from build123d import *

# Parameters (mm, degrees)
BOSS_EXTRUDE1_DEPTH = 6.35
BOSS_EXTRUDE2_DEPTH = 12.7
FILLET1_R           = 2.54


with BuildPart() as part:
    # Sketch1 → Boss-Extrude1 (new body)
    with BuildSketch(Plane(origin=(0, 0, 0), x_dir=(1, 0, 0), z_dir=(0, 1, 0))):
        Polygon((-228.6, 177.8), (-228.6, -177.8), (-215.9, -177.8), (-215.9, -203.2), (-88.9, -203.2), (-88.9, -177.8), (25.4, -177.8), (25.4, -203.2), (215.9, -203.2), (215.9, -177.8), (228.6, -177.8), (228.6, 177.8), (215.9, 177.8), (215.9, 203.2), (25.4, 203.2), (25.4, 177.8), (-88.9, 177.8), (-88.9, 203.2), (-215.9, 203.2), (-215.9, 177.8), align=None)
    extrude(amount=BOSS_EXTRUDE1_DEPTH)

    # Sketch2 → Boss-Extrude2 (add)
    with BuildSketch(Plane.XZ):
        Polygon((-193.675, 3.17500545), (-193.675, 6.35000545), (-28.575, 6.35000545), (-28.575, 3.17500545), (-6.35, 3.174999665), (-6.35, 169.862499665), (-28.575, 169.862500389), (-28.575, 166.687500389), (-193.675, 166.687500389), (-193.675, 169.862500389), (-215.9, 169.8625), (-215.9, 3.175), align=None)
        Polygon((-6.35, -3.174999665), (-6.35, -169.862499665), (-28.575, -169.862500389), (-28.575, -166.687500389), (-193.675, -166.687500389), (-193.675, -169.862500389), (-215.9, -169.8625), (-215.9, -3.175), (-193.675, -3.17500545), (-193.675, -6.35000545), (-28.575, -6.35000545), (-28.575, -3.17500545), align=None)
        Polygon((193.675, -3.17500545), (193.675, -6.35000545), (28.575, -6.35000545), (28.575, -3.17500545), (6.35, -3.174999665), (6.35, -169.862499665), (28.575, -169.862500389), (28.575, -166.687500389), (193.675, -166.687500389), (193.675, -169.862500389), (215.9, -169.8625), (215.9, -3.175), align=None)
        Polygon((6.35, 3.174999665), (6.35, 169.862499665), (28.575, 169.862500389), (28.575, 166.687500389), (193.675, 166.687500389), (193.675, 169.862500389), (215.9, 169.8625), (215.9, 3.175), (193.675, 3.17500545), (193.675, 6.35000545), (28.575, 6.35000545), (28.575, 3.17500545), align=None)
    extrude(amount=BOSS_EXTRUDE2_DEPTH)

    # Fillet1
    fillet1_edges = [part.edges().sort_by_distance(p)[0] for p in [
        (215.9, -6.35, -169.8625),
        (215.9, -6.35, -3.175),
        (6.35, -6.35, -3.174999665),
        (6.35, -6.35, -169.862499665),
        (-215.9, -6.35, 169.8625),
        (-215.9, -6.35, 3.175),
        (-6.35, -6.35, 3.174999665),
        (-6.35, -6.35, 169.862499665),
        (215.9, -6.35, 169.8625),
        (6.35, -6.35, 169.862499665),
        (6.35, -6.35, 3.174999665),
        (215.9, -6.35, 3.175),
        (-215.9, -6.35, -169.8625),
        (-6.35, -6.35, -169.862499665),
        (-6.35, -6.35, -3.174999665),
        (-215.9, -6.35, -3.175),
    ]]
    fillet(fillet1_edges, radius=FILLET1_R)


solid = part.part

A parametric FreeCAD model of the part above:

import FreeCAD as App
import Part
import Sketcher

V = App.Vector
Q = App.Units.Quantity


def edges_at(feature, points):
    """Names of the edges that pass closest to the given points."""
    edges = feature.Shape.Edges
    near = lambda p: min(range(len(edges)), key=lambda i: edges[i].distToShape(Part.Vertex(*p))[0])
    return sorted({f"Edge{near(p) + 1}" for p in points})

doc = App.newDocument("Part")
params = doc.addObject("Spreadsheet::Sheet", "Params")
for row, (alias, value) in enumerate([
    ("sketch1_width", "5 in"),
    ("sketch1_height", "14 in"),
    ("sketch1_height2", "1 in"),
    ("sketch1_width2", "0.5 in"),
    ("sketch1_width3", "4.5 in"),
    ("pad1_length", "0.25 in"),
    ("sketch2_width", "6.5 in"),
    ("sketch2_height", "0.125 in"),
    ("sketch2_height2", "6.5625 in"),
    ("pad2_length", "0.5 in"),
    ("fillet_radius", "0.1 in"),
], start=1):
    params.set(f"A{row}", alias)
    params.set(f"B{row}", "=" + value)
    params.setAlias(f"B{row}", alias)

body = doc.addObject("PartDesign::Body", "Body")

sketch1 = body.newObject("Sketcher::SketchObject", "Sketch")
sketch1.AttachmentSupport = (doc.getObject("XZ_Plane"), [""])
sketch1.MapMode = "FlatFace"
sketch1.addGeometry(Part.LineSegment(V(-229, -178, 0), V(-229, 178, 0)), False)
sketch1.addGeometry(Part.LineSegment(V(-229, 178, 0), V(-216, 178, 0)), False)
sketch1.addGeometry(Part.LineSegment(V(-216, 178, 0), V(-216, 203, 0)), False)
sketch1.addGeometry(Part.LineSegment(V(-216, 203, 0), V(-89, 203, 0)), False)
sketch1.addGeometry(Part.LineSegment(V(-89, 203, 0), V(-89, 178, 0)), False)
sketch1.addGeometry(Part.LineSegment(V(-89, 178, 0), V(25, 178, 0)), False)
sketch1.addGeometry(Part.LineSegment(V(25, 178, 0), V(25, 203, 0)), False)
sketch1.addGeometry(Part.LineSegment(V(25, 203, 0), V(216, 203, 0)), False)
sketch1.addGeometry(Part.LineSegment(V(216, 203, 0), V(216, 178, 0)), False)
sketch1.addGeometry(Part.LineSegment(V(216, 178, 0), V(229, 178, 0)), False)
sketch1.addGeometry(Part.LineSegment(V(229, 178, 0), V(229, -178, 0)), False)
sketch1.addGeometry(Part.LineSegment(V(229, -178, 0), V(216, -178, 0)), False)
sketch1.addGeometry(Part.LineSegment(V(216, -178, 0), V(216, -203, 0)), False)
sketch1.addGeometry(Part.LineSegment(V(216, -203, 0), V(25, -203, 0)), False)
sketch1.addGeometry(Part.LineSegment(V(25, -203, 0), V(25, -178, 0)), False)
sketch1.addGeometry(Part.LineSegment(V(25, -178, 0), V(-89, -178, 0)), False)
sketch1.addGeometry(Part.LineSegment(V(-89, -178, 0), V(-89, -203, 0)), False)
sketch1.addGeometry(Part.LineSegment(V(-89, -203, 0), V(-216, -203, 0)), False)
sketch1.addGeometry(Part.LineSegment(V(-216, -203, 0), V(-216, -178, 0)), False)
sketch1.addGeometry(Part.LineSegment(V(-216, -178, 0), V(-229, -178, 0)), False)
sketch1.addConstraint(Sketcher.Constraint("Coincident", 0, 2, 1, 1))
sketch1.addConstraint(Sketcher.Constraint("Coincident", 1, 2, 2, 1))
sketch1.addConstraint(Sketcher.Constraint("Coincident", 2, 2, 3, 1))
sketch1.addConstraint(Sketcher.Constraint("Coincident", 3, 2, 4, 1))
sketch1.addConstraint(Sketcher.Constraint("Coincident", 4, 2, 5, 1))
sketch1.addConstraint(Sketcher.Constraint("Coincident", 5, 2, 6, 1))
sketch1.addConstraint(Sketcher.Constraint("Coincident", 6, 2, 7, 1))
sketch1.addConstraint(Sketcher.Constraint("Coincident", 7, 2, 8, 1))
sketch1.addConstraint(Sketcher.Constraint("Coincident", 8, 2, 9, 1))
sketch1.addConstraint(Sketcher.Constraint("Coincident", 9, 2, 10, 1))
sketch1.addConstraint(Sketcher.Constraint("Coincident", 10, 2, 11, 1))
sketch1.addConstraint(Sketcher.Constraint("Coincident", 11, 2, 12, 1))
sketch1.addConstraint(Sketcher.Constraint("Coincident", 12, 2, 13, 1))
sketch1.addConstraint(Sketcher.Constraint("Coincident", 13, 2, 14, 1))
sketch1.addConstraint(Sketcher.Constraint("Coincident", 14, 2, 15, 1))
sketch1.addConstraint(Sketcher.Constraint("Coincident", 15, 2, 16, 1))
sketch1.addConstraint(Sketcher.Constraint("Coincident", 16, 2, 17, 1))
sketch1.addConstraint(Sketcher.Constraint("Coincident", 17, 2, 18, 1))
sketch1.addConstraint(Sketcher.Constraint("Coincident", 18, 2, 19, 1))
sketch1.addConstraint(Sketcher.Constraint("Coincident", 19, 2, 0, 1))
sketch1.addConstraint(Sketcher.Constraint("Vertical", 0))
sketch1.addConstraint(Sketcher.Constraint("Horizontal", 1))
sketch1.addConstraint(Sketcher.Constraint("Vertical", 2))
sketch1.addConstraint(Sketcher.Constraint("Horizontal", 3))
sketch1.addConstraint(Sketcher.Constraint("Vertical", 4))
sketch1.addConstraint(Sketcher.Constraint("Horizontal", 5))
sketch1.addConstraint(Sketcher.Constraint("Vertical", 6))
sketch1.addConstraint(Sketcher.Constraint("Horizontal", 7))
sketch1.addConstraint(Sketcher.Constraint("Vertical", 8))
sketch1.addConstraint(Sketcher.Constraint("Horizontal", 9))
sketch1.addConstraint(Sketcher.Constraint("Vertical", 10))
sketch1.addConstraint(Sketcher.Constraint("Horizontal", 11))
sketch1.addConstraint(Sketcher.Constraint("Vertical", 12))
sketch1.addConstraint(Sketcher.Constraint("Horizontal", 13))
sketch1.addConstraint(Sketcher.Constraint("Vertical", 14))
sketch1.addConstraint(Sketcher.Constraint("Horizontal", 15))
sketch1.addConstraint(Sketcher.Constraint("Vertical", 16))
sketch1.addConstraint(Sketcher.Constraint("Horizontal", 17))
sketch1.addConstraint(Sketcher.Constraint("Vertical", 18))
sketch1.addConstraint(Sketcher.Constraint("Horizontal", 19))
sketch1.addConstraint(Sketcher.Constraint("Symmetric", 0, 2, 10, 2, -1, 1))
sketch1.addConstraint(Sketcher.Constraint("Symmetric", 2, 2, 12, 2, -1, 1))
sketch1.addConstraint(Sketcher.Constraint("Symmetric", 7, 2, 17, 2, -1, 1))
sketch1.addConstraint(Sketcher.Constraint("Symmetric", 2, 2, 7, 2, -2))
sketch1.addConstraint(Sketcher.Constraint("Symmetric", 5, 2, 14, 2, -1))
sketch1.addConstraint(Sketcher.Constraint("Horizontal", 1, 2, 4, 2))
sketch1.addConstraint(Sketcher.Constraint("Horizontal", 5, 2, 8, 2))
sketch1.addConstraint(Sketcher.Constraint("Horizontal", 15, 2, 18, 2))
sketch1.addConstraint(Sketcher.Constraint("Vertical", 4, 2, 15, 2))
sketch1.addConstraint(Sketcher.Constraint("DistanceX", 3, 1, 3, 2, Q("5 in")))
sketch1.addConstraint(Sketcher.Constraint("DistanceY", 0, 1, 0, 2, Q("14 in")))
sketch1.addConstraint(Sketcher.Constraint("DistanceY", 2, 1, 2, 2, Q("1 in")))
sketch1.addConstraint(Sketcher.Constraint("DistanceX", 1, 1, 1, 2, Q("0.5 in")))
sketch1.addConstraint(Sketcher.Constraint("DistanceX", 5, 1, 5, 2, Q("4.5 in")))
sketch1.addConstraint(Sketcher.Constraint("DistanceX", 7, 1, 7, 2, Q("7.5 in")))
sketch1.setExpression("Constraints[49]", "Params.sketch1_width")
sketch1.setExpression("Constraints[50]", "Params.sketch1_height")
sketch1.setExpression("Constraints[51]", "Params.sketch1_height2")
sketch1.setExpression("Constraints[52]", "Params.sketch1_width2")
sketch1.setExpression("Constraints[53]", "Params.sketch1_width3")
pad1 = body.newObject("PartDesign::Pad", "Pad")
pad1.Profile = sketch1
pad1.setExpression("Length", "Params.pad1_length")
pad1.Reversed = True

sketch2 = body.newObject("Sketcher::SketchObject", "Sketch001")
sketch2.AttachmentSupport = (doc.getObject("XZ_Plane"), [""])
sketch2.MapMode = "FlatFace"
sketch2.addGeometry(Part.LineSegment(V(-193.7, 3.2, 0), V(-193.7, 6.4, 0)), False)
sketch2.addGeometry(Part.LineSegment(V(-193.7, 6.4, 0), V(-28.6, 6.4, 0)), False)
sketch2.addGeometry(Part.LineSegment(V(-28.6, 6.4, 0), V(-28.6, 3.2, 0)), False)
sketch2.addGeometry(Part.LineSegment(V(-28.6, 3.2, 0), V(-6.3, 3.2, 0)), False)
sketch2.addGeometry(Part.LineSegment(V(-6.3, 3.2, 0), V(-6.3, 169.9, 0)), False)
sketch2.addGeometry(Part.LineSegment(V(-6.3, 169.9, 0), V(-28.6, 169.9, 0)), False)
sketch2.addGeometry(Part.LineSegment(V(-28.6, 169.9, 0), V(-28.6, 166.7, 0)), False)
sketch2.addGeometry(Part.LineSegment(V(-28.6, 166.7, 0), V(-193.7, 166.7, 0)), False)
sketch2.addGeometry(Part.LineSegment(V(-193.7, 166.7, 0), V(-193.7, 169.9, 0)), False)
sketch2.addGeometry(Part.LineSegment(V(-193.7, 169.9, 0), V(-215.9, 169.9, 0)), False)
sketch2.addGeometry(Part.LineSegment(V(-215.9, 169.9, 0), V(-215.9, 3.2, 0)), False)
sketch2.addGeometry(Part.LineSegment(V(-215.9, 3.2, 0), V(-193.7, 3.2, 0)), False)
sketch2.addGeometry(Part.LineSegment(V(-6.3, -169.9, 0), V(-6.3, -3.2, 0)), False)
sketch2.addGeometry(Part.LineSegment(V(-6.3, -3.2, 0), V(-28.6, -3.2, 0)), False)
sketch2.addGeometry(Part.LineSegment(V(-28.6, -3.2, 0), V(-28.6, -6.4, 0)), False)
sketch2.addGeometry(Part.LineSegment(V(-28.6, -6.4, 0), V(-193.7, -6.4, 0)), False)
sketch2.addGeometry(Part.LineSegment(V(-193.7, -6.4, 0), V(-193.7, -3.2, 0)), False)
sketch2.addGeometry(Part.LineSegment(V(-193.7, -3.2, 0), V(-215.9, -3.2, 0)), False)
sketch2.addGeometry(Part.LineSegment(V(-215.9, -3.2, 0), V(-215.9, -169.9, 0)), False)
sketch2.addGeometry(Part.LineSegment(V(-215.9, -169.9, 0), V(-193.7, -169.9, 0)), False)
sketch2.addGeometry(Part.LineSegment(V(-193.7, -169.9, 0), V(-193.7, -166.7, 0)), False)
sketch2.addGeometry(Part.LineSegment(V(-193.7, -166.7, 0), V(-28.6, -166.7, 0)), False)
sketch2.addGeometry(Part.LineSegment(V(-28.6, -166.7, 0), V(-28.6, -169.9, 0)), False)
sketch2.addGeometry(Part.LineSegment(V(-28.6, -169.9, 0), V(-6.3, -169.9, 0)), False)
sketch2.addGeometry(Part.LineSegment(V(193.7, -3.2, 0), V(193.7, -6.4, 0)), False)
sketch2.addGeometry(Part.LineSegment(V(193.7, -6.4, 0), V(28.6, -6.4, 0)), False)
sketch2.addGeometry(Part.LineSegment(V(28.6, -6.4, 0), V(28.6, -3.2, 0)), False)
sketch2.addGeometry(Part.LineSegment(V(28.6, -3.2, 0), V(6.3, -3.2, 0)), False)
sketch2.addGeometry(Part.LineSegment(V(6.3, -3.2, 0), V(6.3, -169.9, 0)), False)
sketch2.addGeometry(Part.LineSegment(V(6.3, -169.9, 0), V(28.6, -169.9, 0)), False)
sketch2.addGeometry(Part.LineSegment(V(28.6, -169.9, 0), V(28.6, -166.7, 0)), False)
sketch2.addGeometry(Part.LineSegment(V(28.6, -166.7, 0), V(193.7, -166.7, 0)), False)
sketch2.addGeometry(Part.LineSegment(V(193.7, -166.7, 0), V(193.7, -169.9, 0)), False)
sketch2.addGeometry(Part.LineSegment(V(193.7, -169.9, 0), V(215.9, -169.9, 0)), False)
sketch2.addGeometry(Part.LineSegment(V(215.9, -169.9, 0), V(215.9, -3.2, 0)), False)
sketch2.addGeometry(Part.LineSegment(V(215.9, -3.2, 0), V(193.7, -3.2, 0)), False)
sketch2.addGeometry(Part.LineSegment(V(6.3, 169.9, 0), V(6.3, 3.2, 0)), False)
sketch2.addGeometry(Part.LineSegment(V(6.3, 3.2, 0), V(28.6, 3.2, 0)), False)
sketch2.addGeometry(Part.LineSegment(V(28.6, 3.2, 0), V(28.6, 6.4, 0)), False)
sketch2.addGeometry(Part.LineSegment(V(28.6, 6.4, 0), V(193.7, 6.4, 0)), False)
sketch2.addGeometry(Part.LineSegment(V(193.7, 6.4, 0), V(193.7, 3.2, 0)), False)
sketch2.addGeometry(Part.LineSegment(V(193.7, 3.2, 0), V(215.9, 3.2, 0)), False)
sketch2.addGeometry(Part.LineSegment(V(215.9, 3.2, 0), V(215.9, 169.9, 0)), False)
sketch2.addGeometry(Part.LineSegment(V(215.9, 169.9, 0), V(193.7, 169.9, 0)), False)
sketch2.addGeometry(Part.LineSegment(V(193.7, 169.9, 0), V(193.7, 166.7, 0)), False)
sketch2.addGeometry(Part.LineSegment(V(193.7, 166.7, 0), V(28.6, 166.7, 0)), False)
sketch2.addGeometry(Part.LineSegment(V(28.6, 166.7, 0), V(28.6, 169.9, 0)), False)
sketch2.addGeometry(Part.LineSegment(V(28.6, 169.9, 0), V(6.3, 169.9, 0)), False)
sketch2.addConstraint(Sketcher.Constraint("Coincident", 0, 2, 1, 1))
sketch2.addConstraint(Sketcher.Constraint("Coincident", 1, 2, 2, 1))
sketch2.addConstraint(Sketcher.Constraint("Coincident", 2, 2, 3, 1))
sketch2.addConstraint(Sketcher.Constraint("Coincident", 3, 2, 4, 1))
sketch2.addConstraint(Sketcher.Constraint("Coincident", 4, 2, 5, 1))
sketch2.addConstraint(Sketcher.Constraint("Coincident", 5, 2, 6, 1))
sketch2.addConstraint(Sketcher.Constraint("Coincident", 6, 2, 7, 1))
sketch2.addConstraint(Sketcher.Constraint("Coincident", 7, 2, 8, 1))
sketch2.addConstraint(Sketcher.Constraint("Coincident", 8, 2, 9, 1))
sketch2.addConstraint(Sketcher.Constraint("Coincident", 9, 2, 10, 1))
sketch2.addConstraint(Sketcher.Constraint("Coincident", 10, 2, 11, 1))
sketch2.addConstraint(Sketcher.Constraint("Coincident", 11, 2, 0, 1))
sketch2.addConstraint(Sketcher.Constraint("Coincident", 12, 2, 13, 1))
sketch2.addConstraint(Sketcher.Constraint("Coincident", 13, 2, 14, 1))
sketch2.addConstraint(Sketcher.Constraint("Coincident", 14, 2, 15, 1))
sketch2.addConstraint(Sketcher.Constraint("Coincident", 15, 2, 16, 1))
sketch2.addConstraint(Sketcher.Constraint("Coincident", 16, 2, 17, 1))
sketch2.addConstraint(Sketcher.Constraint("Coincident", 17, 2, 18, 1))
sketch2.addConstraint(Sketcher.Constraint("Coincident", 18, 2, 19, 1))
sketch2.addConstraint(Sketcher.Constraint("Coincident", 19, 2, 20, 1))
sketch2.addConstraint(Sketcher.Constraint("Coincident", 20, 2, 21, 1))
sketch2.addConstraint(Sketcher.Constraint("Coincident", 21, 2, 22, 1))
sketch2.addConstraint(Sketcher.Constraint("Coincident", 22, 2, 23, 1))
sketch2.addConstraint(Sketcher.Constraint("Coincident", 23, 2, 12, 1))
sketch2.addConstraint(Sketcher.Constraint("Coincident", 24, 2, 25, 1))
sketch2.addConstraint(Sketcher.Constraint("Coincident", 25, 2, 26, 1))
sketch2.addConstraint(Sketcher.Constraint("Coincident", 26, 2, 27, 1))
sketch2.addConstraint(Sketcher.Constraint("Coincident", 27, 2, 28, 1))
sketch2.addConstraint(Sketcher.Constraint("Coincident", 28, 2, 29, 1))
sketch2.addConstraint(Sketcher.Constraint("Coincident", 29, 2, 30, 1))
sketch2.addConstraint(Sketcher.Constraint("Coincident", 30, 2, 31, 1))
sketch2.addConstraint(Sketcher.Constraint("Coincident", 31, 2, 32, 1))
sketch2.addConstraint(Sketcher.Constraint("Coincident", 32, 2, 33, 1))
sketch2.addConstraint(Sketcher.Constraint("Coincident", 33, 2, 34, 1))
sketch2.addConstraint(Sketcher.Constraint("Coincident", 34, 2, 35, 1))
sketch2.addConstraint(Sketcher.Constraint("Coincident", 35, 2, 24, 1))
sketch2.addConstraint(Sketcher.Constraint("Coincident", 36, 2, 37, 1))
sketch2.addConstraint(Sketcher.Constraint("Coincident", 37, 2, 38, 1))
sketch2.addConstraint(Sketcher.Constraint("Coincident", 38, 2, 39, 1))
sketch2.addConstraint(Sketcher.Constraint("Coincident", 39, 2, 40, 1))
sketch2.addConstraint(Sketcher.Constraint("Coincident", 40, 2, 41, 1))
sketch2.addConstraint(Sketcher.Constraint("Coincident", 41, 2, 42, 1))
sketch2.addConstraint(Sketcher.Constraint("Coincident", 42, 2, 43, 1))
sketch2.addConstraint(Sketcher.Constraint("Coincident", 43, 2, 44, 1))
sketch2.addConstraint(Sketcher.Constraint("Coincident", 44, 2, 45, 1))
sketch2.addConstraint(Sketcher.Constraint("Coincident", 45, 2, 46, 1))
sketch2.addConstraint(Sketcher.Constraint("Coincident", 46, 2, 47, 1))
sketch2.addConstraint(Sketcher.Constraint("Coincident", 47, 2, 36, 1))
sketch2.addConstraint(Sketcher.Constraint("Vertical", 0))
sketch2.addConstraint(Sketcher.Constraint("Horizontal", 1))
sketch2.addConstraint(Sketcher.Constraint("Vertical", 2))
sketch2.addConstraint(Sketcher.Constraint("Vertical", 4))
sketch2.addConstraint(Sketcher.Constraint("Horizontal", 5))
sketch2.addConstraint(Sketcher.Constraint("Vertical", 6))
sketch2.addConstraint(Sketcher.Constraint("Horizontal", 7))
sketch2.addConstraint(Sketcher.Constraint("Vertical", 8))
sketch2.addConstraint(Sketcher.Constraint("Horizontal", 9))
sketch2.addConstraint(Sketcher.Constraint("Vertical", 10))
sketch2.addConstraint(Sketcher.Constraint("Vertical", 12))
sketch2.addConstraint(Sketcher.Constraint("Vertical", 14))
sketch2.addConstraint(Sketcher.Constraint("Horizontal", 15))
sketch2.addConstraint(Sketcher.Constraint("Vertical", 16))
sketch2.addConstraint(Sketcher.Constraint("Vertical", 18))
sketch2.addConstraint(Sketcher.Constraint("Horizontal", 19))
sketch2.addConstraint(Sketcher.Constraint("Vertical", 20))
sketch2.addConstraint(Sketcher.Constraint("Horizontal", 21))
sketch2.addConstraint(Sketcher.Constraint("Vertical", 22))
sketch2.addConstraint(Sketcher.Constraint("Horizontal", 23))
sketch2.addConstraint(Sketcher.Constraint("Vertical", 24))
sketch2.addConstraint(Sketcher.Constraint("Horizontal", 25))
sketch2.addConstraint(Sketcher.Constraint("Vertical", 26))
sketch2.addConstraint(Sketcher.Constraint("Vertical", 28))
sketch2.addConstraint(Sketcher.Constraint("Horizontal", 29))
sketch2.addConstraint(Sketcher.Constraint("Vertical", 30))
sketch2.addConstraint(Sketcher.Constraint("Horizontal", 31))
sketch2.addConstraint(Sketcher.Constraint("Vertical", 32))
sketch2.addConstraint(Sketcher.Constraint("Horizontal", 33))
sketch2.addConstraint(Sketcher.Constraint("Vertical", 34))
sketch2.addConstraint(Sketcher.Constraint("Vertical", 36))
sketch2.addConstraint(Sketcher.Constraint("Vertical", 38))
sketch2.addConstraint(Sketcher.Constraint("Horizontal", 39))
sketch2.addConstraint(Sketcher.Constraint("Vertical", 40))
sketch2.addConstraint(Sketcher.Constraint("Vertical", 42))
sketch2.addConstraint(Sketcher.Constraint("Horizontal", 43))
sketch2.addConstraint(Sketcher.Constraint("Vertical", 44))
sketch2.addConstraint(Sketcher.Constraint("Horizontal", 45))
sketch2.addConstraint(Sketcher.Constraint("Vertical", 46))
sketch2.addConstraint(Sketcher.Constraint("Horizontal", 47))
sketch2.addConstraint(Sketcher.Constraint("Symmetric", 0, 2, 24, 2, -1, 1))
sketch2.addConstraint(Sketcher.Constraint("Symmetric", 2, 2, 26, 2, -1, 1))
sketch2.addConstraint(Sketcher.Constraint("Symmetric", 3, 2, 27, 2, -1, 1))
sketch2.addConstraint(Sketcher.Constraint("Symmetric", 5, 2, 29, 2, -1, 1))
sketch2.addConstraint(Sketcher.Constraint("Symmetric", 7, 2, 31, 2, -1, 1))
sketch2.addConstraint(Sketcher.Constraint("Symmetric", 9, 2, 33, 2, -1, 1))
sketch2.addConstraint(Sketcher.Constraint("Symmetric", 12, 2, 36, 2, -1, 1))
sketch2.addConstraint(Sketcher.Constraint("Symmetric", 13, 2, 37, 2, -1, 1))
sketch2.addConstraint(Sketcher.Constraint("Symmetric", 15, 2, 39, 2, -1, 1))
sketch2.addConstraint(Sketcher.Constraint("Symmetric", 17, 2, 41, 2, -1, 1))
sketch2.addConstraint(Sketcher.Constraint("Symmetric", 19, 2, 43, 2, -1, 1))
sketch2.addConstraint(Sketcher.Constraint("Symmetric", 21, 2, 45, 2, -1, 1))
sketch2.addConstraint(Sketcher.Constraint("Symmetric", 15, 2, 24, 2, -2))
sketch2.addConstraint(Sketcher.Constraint("Symmetric", 13, 2, 26, 2, -2))
sketch2.addConstraint(Sketcher.Constraint("Symmetric", 12, 2, 27, 2, -2))
sketch2.addConstraint(Sketcher.Constraint("Symmetric", 22, 2, 29, 2, -2))
sketch2.addConstraint(Sketcher.Constraint("Symmetric", 20, 2, 31, 2, -2))
sketch2.addConstraint(Sketcher.Constraint("Symmetric", 18, 2, 33, 2, -2))
sketch2.addConstraint(Sketcher.Constraint("Parallel", 3, 11))
sketch2.addConstraint(Sketcher.Constraint("Parallel", 11, 13))
sketch2.addConstraint(Sketcher.Constraint("Parallel", 13, 17))
sketch2.addConstraint(Sketcher.Constraint("Parallel", 27, 35))
sketch2.addConstraint(Sketcher.Constraint("Parallel", 37, 41))
sketch2.addConstraint(Sketcher.Constraint("Horizontal", 5, 2, 8, 2))
sketch2.addConstraint(Sketcher.Constraint("Horizontal", 3, 2, 10, 2))
sketch2.addConstraint(Sketcher.Constraint("Horizontal", 13, 2, 16, 2))
sketch2.addConstraint(Sketcher.Constraint("Horizontal", 27, 2, 34, 2))
sketch2.addConstraint(Sketcher.Constraint("Horizontal", 43, 2, 46, 2))
sketch2.addConstraint(Sketcher.Constraint("Vertical", 2, 2, 5, 2))
sketch2.addConstraint(Sketcher.Constraint("Vertical", 0, 2, 7, 2))
sketch2.addConstraint(Sketcher.Constraint("Equal", 5, 9))
sketch2.addConstraint(Sketcher.Constraint("Equal", 2, 6))
sketch2.addConstraint(Sketcher.Constraint("DistanceX", 1, 1, 1, 2, Q("6.5 in")))
sketch2.addConstraint(Sketcher.Constraint("DistanceX", 9, 2, -1, 1, Q("8.5 in")))
sketch2.addConstraint(Sketcher.Constraint("DistanceX", 12, 2, 27, 2, Q("0.5 in")))
sketch2.addConstraint(Sketcher.Constraint("DistanceY", 0, 1, 0, 2, Q("0.125 in")))
sketch2.addConstraint(Sketcher.Constraint("DistanceY", 4, 1, 4, 2, Q("6.5625 in")))
sketch2.addConstraint(Sketcher.Constraint("DistanceY", 12, 2, 3, 2, Q("0.25 in")))
sketch2.setExpression("Constraints[120]", "Params.sketch2_width")
sketch2.setExpression("Constraints[123]", "Params.sketch2_height")
sketch2.setExpression("Constraints[124]", "Params.sketch2_height2")
pad2 = body.newObject("PartDesign::Pad", "Pad001")
pad2.Profile = sketch2
pad2.setExpression("Length", "Params.pad2_length")
doc.recompute()

fillet = body.newObject("PartDesign::Fillet", "Fillet")
fillet.Base = (pad2, edges_at(pad2, [
    (215.9, -6.35, -169.863),
    (215.9, -6.35, -3.175),
    (6.35, -6.35, -3.175),
    (6.35, -6.35, -169.862),
    (-215.9, -6.35, 169.863),
    (-215.9, -6.35, 3.175),
    (-6.35, -6.35, 3.175),
    (-6.35, -6.35, 169.862),
    (215.9, -6.35, 169.863),
    (6.35, -6.35, 169.862),
    (6.35, -6.35, 3.175),
    (215.9, -6.35, 3.175),
    (-215.9, -6.35, -169.863),
    (-6.35, -6.35, -169.862),
    (-6.35, -6.35, -3.175),
    (-215.9, -6.35, -3.175),
]))
fillet.setExpression("Radius", "Params.fillet_radius")

doc.recompute()
